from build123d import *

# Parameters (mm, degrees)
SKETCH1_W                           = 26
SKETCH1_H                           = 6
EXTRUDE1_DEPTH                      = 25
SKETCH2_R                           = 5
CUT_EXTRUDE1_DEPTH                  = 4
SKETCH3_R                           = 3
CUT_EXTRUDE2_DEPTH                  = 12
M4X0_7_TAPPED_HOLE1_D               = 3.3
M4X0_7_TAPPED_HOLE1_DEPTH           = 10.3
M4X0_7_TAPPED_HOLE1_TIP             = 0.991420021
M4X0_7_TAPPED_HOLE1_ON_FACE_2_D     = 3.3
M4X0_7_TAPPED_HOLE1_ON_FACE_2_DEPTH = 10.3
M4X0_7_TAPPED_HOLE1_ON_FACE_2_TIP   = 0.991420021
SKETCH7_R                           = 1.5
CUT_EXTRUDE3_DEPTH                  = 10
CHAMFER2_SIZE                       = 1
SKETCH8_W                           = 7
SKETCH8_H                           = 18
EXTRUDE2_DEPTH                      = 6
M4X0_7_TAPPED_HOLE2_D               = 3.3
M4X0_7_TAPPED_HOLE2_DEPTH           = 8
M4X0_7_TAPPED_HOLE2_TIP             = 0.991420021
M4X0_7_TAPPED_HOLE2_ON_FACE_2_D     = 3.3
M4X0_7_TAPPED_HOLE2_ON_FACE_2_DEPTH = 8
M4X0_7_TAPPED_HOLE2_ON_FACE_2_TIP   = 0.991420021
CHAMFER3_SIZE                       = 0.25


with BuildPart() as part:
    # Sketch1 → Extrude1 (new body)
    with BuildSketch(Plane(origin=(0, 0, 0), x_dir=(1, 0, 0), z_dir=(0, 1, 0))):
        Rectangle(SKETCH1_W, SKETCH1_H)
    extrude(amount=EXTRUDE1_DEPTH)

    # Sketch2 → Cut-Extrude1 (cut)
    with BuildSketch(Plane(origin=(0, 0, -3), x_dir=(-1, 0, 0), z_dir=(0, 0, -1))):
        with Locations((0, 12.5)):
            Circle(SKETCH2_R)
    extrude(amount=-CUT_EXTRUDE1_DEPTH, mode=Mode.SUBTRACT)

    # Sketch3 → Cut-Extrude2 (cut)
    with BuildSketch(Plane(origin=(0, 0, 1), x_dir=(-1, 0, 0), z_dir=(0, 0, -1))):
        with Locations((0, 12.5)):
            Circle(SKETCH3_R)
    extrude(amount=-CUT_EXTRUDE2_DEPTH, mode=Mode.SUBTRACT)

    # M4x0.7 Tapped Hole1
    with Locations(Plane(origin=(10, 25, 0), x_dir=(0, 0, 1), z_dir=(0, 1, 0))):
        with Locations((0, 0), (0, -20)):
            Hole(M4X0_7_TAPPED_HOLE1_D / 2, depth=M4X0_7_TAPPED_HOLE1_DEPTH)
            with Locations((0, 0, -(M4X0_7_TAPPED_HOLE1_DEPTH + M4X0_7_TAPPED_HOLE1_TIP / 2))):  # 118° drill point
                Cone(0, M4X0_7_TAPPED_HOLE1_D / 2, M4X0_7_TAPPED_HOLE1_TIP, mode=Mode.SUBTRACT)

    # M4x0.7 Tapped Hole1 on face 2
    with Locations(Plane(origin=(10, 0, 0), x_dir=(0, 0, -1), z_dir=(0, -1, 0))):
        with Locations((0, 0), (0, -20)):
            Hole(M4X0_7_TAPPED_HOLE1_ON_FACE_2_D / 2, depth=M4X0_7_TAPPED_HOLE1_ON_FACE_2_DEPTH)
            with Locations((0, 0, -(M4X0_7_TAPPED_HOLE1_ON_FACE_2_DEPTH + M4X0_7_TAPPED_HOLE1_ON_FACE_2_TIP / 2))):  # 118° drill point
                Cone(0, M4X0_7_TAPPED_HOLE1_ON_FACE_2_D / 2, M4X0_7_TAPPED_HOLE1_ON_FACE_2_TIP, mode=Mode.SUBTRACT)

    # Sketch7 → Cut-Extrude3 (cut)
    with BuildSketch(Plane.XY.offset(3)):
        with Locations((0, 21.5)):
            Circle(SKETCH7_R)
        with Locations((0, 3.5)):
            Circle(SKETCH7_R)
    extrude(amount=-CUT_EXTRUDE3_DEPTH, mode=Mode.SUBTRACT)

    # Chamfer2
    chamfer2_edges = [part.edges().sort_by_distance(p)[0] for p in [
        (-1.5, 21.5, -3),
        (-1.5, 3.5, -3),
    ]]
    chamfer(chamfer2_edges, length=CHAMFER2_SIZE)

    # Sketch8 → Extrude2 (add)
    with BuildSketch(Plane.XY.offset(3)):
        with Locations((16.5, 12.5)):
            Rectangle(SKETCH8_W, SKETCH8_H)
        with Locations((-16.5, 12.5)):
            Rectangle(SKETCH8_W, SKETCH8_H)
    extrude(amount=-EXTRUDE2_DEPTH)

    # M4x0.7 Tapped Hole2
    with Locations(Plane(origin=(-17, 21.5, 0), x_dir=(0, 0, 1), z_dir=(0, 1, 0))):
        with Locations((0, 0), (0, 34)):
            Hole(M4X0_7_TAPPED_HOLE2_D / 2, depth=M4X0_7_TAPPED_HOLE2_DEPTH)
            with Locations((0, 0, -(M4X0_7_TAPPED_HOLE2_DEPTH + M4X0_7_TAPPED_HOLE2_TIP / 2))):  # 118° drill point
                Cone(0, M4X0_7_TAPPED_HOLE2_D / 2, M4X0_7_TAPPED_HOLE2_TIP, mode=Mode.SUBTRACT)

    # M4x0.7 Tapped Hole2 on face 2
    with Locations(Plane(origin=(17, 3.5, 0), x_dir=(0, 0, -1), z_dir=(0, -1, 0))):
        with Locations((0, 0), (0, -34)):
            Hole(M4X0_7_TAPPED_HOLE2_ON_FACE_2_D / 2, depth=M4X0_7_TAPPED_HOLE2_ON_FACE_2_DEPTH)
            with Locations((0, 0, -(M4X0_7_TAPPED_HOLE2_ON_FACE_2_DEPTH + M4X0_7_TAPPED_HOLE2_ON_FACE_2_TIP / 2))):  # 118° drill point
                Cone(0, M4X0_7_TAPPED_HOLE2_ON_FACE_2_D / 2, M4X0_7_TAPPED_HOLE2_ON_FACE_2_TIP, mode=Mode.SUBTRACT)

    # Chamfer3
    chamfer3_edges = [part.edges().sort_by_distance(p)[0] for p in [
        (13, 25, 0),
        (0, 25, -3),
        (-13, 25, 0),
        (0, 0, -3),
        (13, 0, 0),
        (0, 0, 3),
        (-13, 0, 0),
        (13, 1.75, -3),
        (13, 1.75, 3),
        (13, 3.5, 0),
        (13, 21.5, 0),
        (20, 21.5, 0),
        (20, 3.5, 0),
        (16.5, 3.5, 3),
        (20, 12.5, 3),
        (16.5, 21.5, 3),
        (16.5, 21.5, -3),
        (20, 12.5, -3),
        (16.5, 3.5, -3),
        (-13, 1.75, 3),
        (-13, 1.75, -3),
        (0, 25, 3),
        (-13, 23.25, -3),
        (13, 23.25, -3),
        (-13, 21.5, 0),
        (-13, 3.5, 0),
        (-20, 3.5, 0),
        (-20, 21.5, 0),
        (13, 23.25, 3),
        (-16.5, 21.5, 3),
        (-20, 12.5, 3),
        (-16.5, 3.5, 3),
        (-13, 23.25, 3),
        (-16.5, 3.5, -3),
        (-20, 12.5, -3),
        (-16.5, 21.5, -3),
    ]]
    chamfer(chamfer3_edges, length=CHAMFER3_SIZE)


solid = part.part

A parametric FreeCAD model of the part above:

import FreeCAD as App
import Part
import Sketcher

V = App.Vector
Q = App.Units.Quantity


def edges_at(feature, points):
    """Names of the edges that pass closest to the given points."""
    edges = feature.Shape.Edges
    near = lambda p: min(range(len(edges)), key=lambda i: edges[i].distToShape(Part.Vertex(*p))[0])
    return sorted({f"Edge{near(p) + 1}" for p in points})

doc = App.newDocument("Part")
body = doc.addObject("PartDesign::Body", "Body")

sketch1 = doc.addObject("Sketcher::SketchObject", "Sketch")
body.addObject(sketch1)
sketch1.AttachmentSupport = (doc.XZ_Plane, [""])
sketch1.MapMode = "FlatFace"
sketch1.addGeometry([
    Part.LineSegment(V(-13, -3, 0), V(-13, 3, 0)),
    Part.LineSegment(V(-13, 3, 0), V(13, 3, 0)),
    Part.LineSegment(V(13, 3, 0), V(13, -3, 0)),
    Part.LineSegment(V(13, -3, 0), V(-13, -3, 0)),
], False)
sketch1.addConstraint([
    Sketcher.Constraint("Coincident", 0, 2, 1, 1),
    Sketcher.Constraint("Coincident", 1, 2, 2, 1),
    Sketcher.Constraint("Coincident", 2, 2, 3, 1),
    Sketcher.Constraint("Coincident", 3, 2, 0, 1),
    Sketcher.Constraint("Vertical", 0),
    Sketcher.Constraint("Horizontal", 1),
    Sketcher.Constraint("Vertical", 2),
    Sketcher.Constraint("Horizontal", 3),
    Sketcher.Constraint("Symmetric", 0, 2, 2, 2, -1, 1),
    Sketcher.Constraint("DistanceX", 1, 1, 1, 2, Q("26 mm")),
    Sketcher.Constraint("DistanceY", 0, 1, 0, 2, Q("6 mm")),
])
pad1 = doc.addObject("PartDesign::Pad", "Pad")
body.addObject(pad1)
pad1.Profile = sketch1
pad1.Length = 25
pad1.Reversed = True

sketch2 = doc.addObject("Sketcher::SketchObject", "Sketch001")
body.addObject(sketch2)
sketch2.AttachmentSupport = (doc.XY_Plane, [""])
sketch2.MapMode = "FlatFace"
sketch2.AttachmentOffset = App.Placement(V(0, 0, -3), App.Rotation())
sketch2.addGeometry(Part.Circle(V(0, 12, 0), V(0, 0, 1), 5), False)
sketch2.addConstraint([
    Sketcher.Constraint("PointOnObject", 0, 3, -2),
    Sketcher.Constraint("Diameter", 0, Q("10 mm")),
    Sketcher.Constraint("DistanceY", -1, 1, 0, 3, Q("12.5 mm")),
])
pocket1 = doc.addObject("PartDesign::Pocket", "Pocket")
body.addObject(pocket1)
pocket1.Profile = sketch2
pocket1.Length = 4
pocket1.Reversed = True

sketch3 = doc.addObject("Sketcher::SketchObject", "Sketch002")
body.addObject(sketch3)
sketch3.AttachmentSupport = (doc.XY_Plane, [""])
sketch3.MapMode = "FlatFace"
sketch3.AttachmentOffset = App.Placement(V(0, 0, 1), App.Rotation())
sketch3.addGeometry(Part.Circle(V(0, 12.5, 0), V(0, 0, 1), 3), False)
sketch3.addConstraint([
    Sketcher.Constraint("PointOnObject", 0, 3, -2),
    Sketcher.Constraint("Diameter", 0, Q("6 mm")),
    Sketcher.Constraint("DistanceY", -1, 1, 0, 3, Q("12.5 mm")),
])
pocket2 = doc.addObject("PartDesign::Pocket", "Pocket001")
body.addObject(pocket2)
pocket2.Profile = sketch3
pocket2.Length = 12
pocket2.Reversed = True

sketch4 = doc.addObject("Sketcher::SketchObject", "Sketch003")
body.addObject(sketch4)
sketch4.AttachmentSupport = (doc.XZ_Plane, [""])
sketch4.MapMode = "FlatFace"
sketch4.AttachmentOffset = App.Placement(V(0, 0, -25), App.Rotation())
sketch4.addGeometry([
    Part.Circle(V(10, 0, 0), V(0, 0, 1), 1.6),
    Part.Circle(V(-10, 0, 0), V(0, 0, 1), 1.6),
], False)
sketch4.addConstraint([
    Sketcher.Constraint("Equal", 0, 1),
    Sketcher.Constraint("Symmetric", 0, 3, 1, 3, -1, 1),
    Sketcher.Constraint("PointOnObject", 0, 3, -1),
    Sketcher.Constraint("Diameter", 0, Q("3.3 mm")),
    Sketcher.Constraint("DistanceX", -1, 1, 0, 3, Q("10 mm")),
])
doc.recompute()
hole = doc.addObject("PartDesign::Hole", "Hole")
body.addObject(hole)
hole.Profile = sketch4
hole.ThreadType = "None"
hole.Diameter = 3.3
hole.DepthType = "Dimension"
hole.Depth = 10.3
hole.DrillPoint = "Angled"
hole.DrillPointAngle = 118
hole.Reversed = True

sketch5 = doc.addObject("Sketcher::SketchObject", "Sketch004")
body.addObject(sketch5)
sketch5.AttachmentSupport = (doc.XZ_Plane, [""])
sketch5.MapMode = "FlatFace"
sketch5.addGeometry([
    Part.Circle(V(10, 0, 0), V(0, 0, 1), 1.6),
    Part.Circle(V(-10, 0, 0), V(0, 0, 1), 1.6),
], False)
sketch5.addConstraint([
    Sketcher.Constraint("Equal", 0, 1),
    Sketcher.Constraint("Symmetric", 0, 3, 1, 3, -1, 1),
    Sketcher.Constraint("PointOnObject", 0, 3, -1),
    Sketcher.Constraint("Diameter", 0, Q("3.3 mm")),
    Sketcher.Constraint("DistanceX", -1, 1, 0, 3, Q("10 mm")),
])
doc.recompute()
hole2 = doc.addObject("PartDesign::Hole", "Hole001")
body.addObject(hole2)
hole2.Profile = sketch5
hole2.ThreadType = "None"
hole2.Diameter = 3.3
hole2.DepthType = "Dimension"
hole2.Depth = 10.3
hole2.DrillPoint = "Angled"
hole2.DrillPointAngle = 118

sketch6 = doc.addObject("Sketcher::SketchObject", "Sketch005")
body.addObject(sketch6)
sketch6.AttachmentSupport = (doc.XY_Plane, [""])
sketch6.MapMode = "FlatFace"
sketch6.AttachmentOffset = App.Placement(V(0, 0, 3), App.Rotation())
sketch6.addGeometry([
    Part.Circle(V(0, 21.5, 0), V(0, 0, 1), 1.5),
    Part.Circle(V(0, 3.5, 0), V(0, 0, 1), 1.5),
], False)
sketch6.addConstraint([
    Sketcher.Constraint("Equal", 0, 1),
    Sketcher.Constraint("PointOnObject", 0, 3, -2),
    Sketcher.Constraint("PointOnObject", 1, 3, -2),
    Sketcher.Constraint("Diameter", 0, Q("3 mm")),
    Sketcher.Constraint("DistanceY", 1, 3, 0, 3, Q("18 mm")),
    Sketcher.Constraint("DistanceY", -1, 1, 0, 3, Q("21.5 mm")),
])
pocket3 = doc.addObject("PartDesign::Pocket", "Pocket002")
body.addObject(pocket3)
pocket3.Profile = sketch6
pocket3.Length = 10
doc.recompute()

chamfer = doc.addObject("PartDesign::Chamfer", "Chamfer")
body.addObject(chamfer)
chamfer.Base = (pocket3, edges_at(pocket3, [(-1.5, 21.5, -3), (-1.5, 3.5, -3)]))
chamfer.Size = 1

sketch7 = doc.addObject("Sketcher::SketchObject", "Sketch006")
body.addObject(sketch7)
sketch7.AttachmentSupport = (doc.XY_Plane, [""])
sketch7.MapMode = "FlatFace"
sketch7.AttachmentOffset = App.Placement(V(0, 0, 3), App.Rotation())
sketch7.addGeometry([
    Part.LineSegment(V(13, 22, 0), V(13, 4, 0)),
    Part.LineSegment(V(13, 4, 0), V(20, 4, 0)),
    Part.LineSegment(V(20, 4, 0), V(20, 22, 0)),
    Part.LineSegment(V(20, 22, 0), V(13, 22, 0)),
    Part.LineSegment(V(-20, 22, 0), V(-20, 4, 0)),
    Part.LineSegment(V(-20, 4, 0), V(-13, 4, 0)),
    Part.LineSegment(V(-13, 4, 0), V(-13, 22, 0)),
    Part.LineSegment(V(-13, 22, 0), V(-20, 22, 0)),
], False)
sketch7.addConstraint([
    Sketcher.Constraint("Coincident", 0, 2, 1, 1),
    Sketcher.Constraint("Coincident", 1, 2, 2, 1),
    Sketcher.Constraint("Coincident", 2, 2, 3, 1),
    Sketcher.Constraint("Coincident", 3, 2, 0, 1),
    Sketcher.Constraint("Coincident", 4, 2, 5, 1),
    Sketcher.Constraint("Coincident", 5, 2, 6, 1),
    Sketcher.Constraint("Coincident", 6, 2, 7, 1),
    Sketcher.Constraint("Coincident", 7, 2, 4, 1),
    Sketcher.Constraint("Vertical", 0),
    Sketcher.Constraint("Horizontal", 1),
    Sketcher.Constraint("Vertical", 2),
    Sketcher.Constraint("Horizontal", 3),
    Sketcher.Constraint("Vertical", 4),
    Sketcher.Constraint("Horizontal", 5),
    Sketcher.Constraint("Vertical", 6),
    Sketcher.Constraint("Horizontal", 7),
    Sketcher.Constraint("Symmetric", 1, 2, 4, 2, -2),
    Sketcher.Constraint("Symmetric", 3, 2, 6, 2, -2),
    Sketcher.Constraint("DistanceX", 1, 1, 1, 2, Q("7 mm")),
    Sketcher.Constraint("DistanceY", 0, 2, 0, 1, Q("18 mm")),
    Sketcher.Constraint("DistanceX", -1, 1, 0, 2, Q("13 mm")),
    Sketcher.Constraint("DistanceY", -1, 1, 0, 2, Q("3.5 mm")),
])
pad2 = doc.addObject("PartDesign::Pad", "Pad001")
body.addObject(pad2)
pad2.Profile = sketch7
pad2.Length = 6
pad2.Reversed = True

sketch8 = doc.addObject("Sketcher::SketchObject", "Sketch007")
body.addObject(sketch8)
sketch8.AttachmentSupport = (doc.XZ_Plane, [""])
sketch8.MapMode = "FlatFace"
sketch8.AttachmentOffset = App.Placement(V(0, 0, -21.5), App.Rotation())
sketch8.addGeometry([
    Part.Circle(V(-17, 0, 0), V(0, 0, 1), 1.6),
    Part.Circle(V(17, 0, 0), V(0, 0, 1), 1.6),
], False)
sketch8.addConstraint([
    Sketcher.Constraint("Equal", 0, 1),
    Sketcher.Constraint("Symmetric", 0, 3, 1, 3, -1, 1),
    Sketcher.Constraint("PointOnObject", 0, 3, -1),
    Sketcher.Constraint("Diameter", 0, Q("3.3 mm")),
    Sketcher.Constraint("DistanceX", 0, 3, -1, 1, Q("17 mm")),
])
doc.recompute()
hole3 = doc.addObject("PartDesign::Hole", "Hole002")
body.addObject(hole3)
hole3.Profile = sketch8
hole3.ThreadType = "None"
hole3.Diameter = 3.3
hole3.DepthType = "Dimension"
hole3.Depth = 8
hole3.DrillPoint = "Angled"
hole3.DrillPointAngle = 118
hole3.Reversed = True

sketch9 = doc.addObject("Sketcher::SketchObject", "Sketch008")
body.addObject(sketch9)
sketch9.AttachmentSupport = (doc.XZ_Plane, [""])
sketch9.MapMode = "FlatFace"
sketch9.AttachmentOffset = App.Placement(V(0, 0, -3.5), App.Rotation())
sketch9.addGeometry([
    Part.Circle(V(17, 0, 0), V(0, 0, 1), 1.6),
    Part.Circle(V(-17, 0, 0), V(0, 0, 1), 1.6),
], False)
sketch9.addConstraint([
    Sketcher.Constraint("Equal", 0, 1),
    Sketcher.Constraint("Symmetric", 0, 3, 1, 3, -1, 1),
    Sketcher.Constraint("PointOnObject", 0, 3, -1),
    Sketcher.Constraint("Diameter", 0, Q("3.3 mm")),
    Sketcher.Constraint("DistanceX", -1, 1, 0, 3, Q("17 mm")),
])
doc.recompute()
hole4 = doc.addObject("PartDesign::Hole", "Hole003")
body.addObject(hole4)
hole4.Profile = sketch9
hole4.ThreadType = "None"
hole4.Diameter = 3.3
hole4.DepthType = "Dimension"
hole4.Depth = 8
hole4.DrillPoint = "Angled"
hole4.DrillPointAngle = 118
doc.recompute()

chamfer2 = doc.addObject("PartDesign::Chamfer", "Chamfer001")
body.addObject(chamfer2)
chamfer2.Base = (hole4, edges_at(hole4, [
    (13, 25, 0),
    (0, 25, -3),
    (-13, 25, 0),
    (0, 0, -3),
    (13, 0, 0),
    (0, 0, 3),
    (-13, 0, 0),
    (13, 1.75, -3),
    (13, 1.75, 3),
    (13, 3.5, 0),
    (13, 21.5, 0),
    (20, 21.5, 0),
    (20, 3.5, 0),
    (16.5, 3.5, 3),
    (20, 12.5, 3),
    (16.5, 21.5, 3),
    (16.5, 21.5, -3),
    (20, 12.5, -3),
    (16.5, 3.5, -3),
    (-13, 1.75, 3),
    (-13, 1.75, -3),
    (0, 25, 3),
    (-13, 23.25, -3),
    (13, 23.25, -3),
    (-13, 21.5, 0),
    (-13, 3.5, 0),
    (-20, 3.5, 0),
    (-20, 21.5, 0),
    (13, 23.25, 3),
    (-16.5, 21.5, 3),
    (-20, 12.5, 3),
    (-16.5, 3.5, 3),
    (-13, 23.25, 3),
    (-16.5, 3.5, -3),
    (-20, 12.5, -3),
    (-16.5, 21.5, -3),
]))
chamfer2.Size = 0.25

doc.recompute()
